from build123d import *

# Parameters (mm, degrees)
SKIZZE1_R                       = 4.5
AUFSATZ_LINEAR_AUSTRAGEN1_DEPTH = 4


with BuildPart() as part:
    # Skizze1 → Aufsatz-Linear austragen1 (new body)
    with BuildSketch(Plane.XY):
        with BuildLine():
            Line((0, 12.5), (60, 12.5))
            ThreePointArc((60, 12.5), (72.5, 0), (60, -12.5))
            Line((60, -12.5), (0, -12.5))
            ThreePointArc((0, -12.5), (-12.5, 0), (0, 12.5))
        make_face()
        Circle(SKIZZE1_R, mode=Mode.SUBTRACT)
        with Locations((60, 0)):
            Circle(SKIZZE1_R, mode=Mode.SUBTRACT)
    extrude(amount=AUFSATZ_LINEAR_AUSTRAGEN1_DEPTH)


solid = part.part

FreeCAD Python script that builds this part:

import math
import FreeCAD as App
import Part
import Sketcher

doc = App.newDocument("Part")
body = doc.addObject("PartDesign::Body", "Body")

# Sketch on XY plane
sketch1 = body.newObject("Sketcher::SketchObject", "Sketch")
sketch1.AttachmentSupport = (doc.getObject("XY_Plane"), [""])
sketch1.MapMode = "FlatFace"
sketch1.addGeometry([
    Part.LineSegment(App.Vector(60, 12.5, 0), App.Vector(0, 12.5, 0)),  # 0
    Part.ArcOfCircle(Part.Circle(App.Vector(0, 0, 0), App.Vector(0, 0, 1), 12.5), math.radians(90), math.radians(270)),  # 1
    Part.LineSegment(App.Vector(0, -12.5, 0), App.Vector(60, -12.5, 0)),  # 2
    Part.ArcOfCircle(Part.Circle(App.Vector(60, 0, 0), App.Vector(0, 0, 1), 12.5), math.radians(-90), math.radians(90)),  # 3
    Part.Circle(App.Vector(60, 0, 0), App.Vector(0, 0, 1), 4.5),  # 4
    Part.Circle(App.Vector(0, 0, 0), App.Vector(0, 0, 1), 4.5),  # 5
], False)
sketch1.addConstraint([
    Sketcher.Constraint("Tangent", 0, 2, 1, 1),
    Sketcher.Constraint("Tangent", 1, 2, 2, 1),
    Sketcher.Constraint("Tangent", 2, 2, 3, 1),
    Sketcher.Constraint("Tangent", 3, 2, 0, 1),
    Sketcher.Constraint("Horizontal", 0),
    Sketcher.Constraint("Horizontal", 2),
    Sketcher.Constraint("Coincident", 1, 3, -1, 1),
    Sketcher.Constraint("Coincident", 5, 3, -1, 1),
    Sketcher.Constraint("Coincident", 4, 3, 3, 3),
    Sketcher.Constraint("Equal", 4, 5),
    Sketcher.Constraint("Diameter", 4, 9.0),
    Sketcher.Constraint("Radius", 1, 12.5),
    Sketcher.Constraint("DistanceX", 0, 2, 0, 1, 60.0),
])
pad1 = body.newObject("PartDesign::Pad", "Pad")
pad1.Profile = sketch1
pad1.Length = 4

doc.recompute()
